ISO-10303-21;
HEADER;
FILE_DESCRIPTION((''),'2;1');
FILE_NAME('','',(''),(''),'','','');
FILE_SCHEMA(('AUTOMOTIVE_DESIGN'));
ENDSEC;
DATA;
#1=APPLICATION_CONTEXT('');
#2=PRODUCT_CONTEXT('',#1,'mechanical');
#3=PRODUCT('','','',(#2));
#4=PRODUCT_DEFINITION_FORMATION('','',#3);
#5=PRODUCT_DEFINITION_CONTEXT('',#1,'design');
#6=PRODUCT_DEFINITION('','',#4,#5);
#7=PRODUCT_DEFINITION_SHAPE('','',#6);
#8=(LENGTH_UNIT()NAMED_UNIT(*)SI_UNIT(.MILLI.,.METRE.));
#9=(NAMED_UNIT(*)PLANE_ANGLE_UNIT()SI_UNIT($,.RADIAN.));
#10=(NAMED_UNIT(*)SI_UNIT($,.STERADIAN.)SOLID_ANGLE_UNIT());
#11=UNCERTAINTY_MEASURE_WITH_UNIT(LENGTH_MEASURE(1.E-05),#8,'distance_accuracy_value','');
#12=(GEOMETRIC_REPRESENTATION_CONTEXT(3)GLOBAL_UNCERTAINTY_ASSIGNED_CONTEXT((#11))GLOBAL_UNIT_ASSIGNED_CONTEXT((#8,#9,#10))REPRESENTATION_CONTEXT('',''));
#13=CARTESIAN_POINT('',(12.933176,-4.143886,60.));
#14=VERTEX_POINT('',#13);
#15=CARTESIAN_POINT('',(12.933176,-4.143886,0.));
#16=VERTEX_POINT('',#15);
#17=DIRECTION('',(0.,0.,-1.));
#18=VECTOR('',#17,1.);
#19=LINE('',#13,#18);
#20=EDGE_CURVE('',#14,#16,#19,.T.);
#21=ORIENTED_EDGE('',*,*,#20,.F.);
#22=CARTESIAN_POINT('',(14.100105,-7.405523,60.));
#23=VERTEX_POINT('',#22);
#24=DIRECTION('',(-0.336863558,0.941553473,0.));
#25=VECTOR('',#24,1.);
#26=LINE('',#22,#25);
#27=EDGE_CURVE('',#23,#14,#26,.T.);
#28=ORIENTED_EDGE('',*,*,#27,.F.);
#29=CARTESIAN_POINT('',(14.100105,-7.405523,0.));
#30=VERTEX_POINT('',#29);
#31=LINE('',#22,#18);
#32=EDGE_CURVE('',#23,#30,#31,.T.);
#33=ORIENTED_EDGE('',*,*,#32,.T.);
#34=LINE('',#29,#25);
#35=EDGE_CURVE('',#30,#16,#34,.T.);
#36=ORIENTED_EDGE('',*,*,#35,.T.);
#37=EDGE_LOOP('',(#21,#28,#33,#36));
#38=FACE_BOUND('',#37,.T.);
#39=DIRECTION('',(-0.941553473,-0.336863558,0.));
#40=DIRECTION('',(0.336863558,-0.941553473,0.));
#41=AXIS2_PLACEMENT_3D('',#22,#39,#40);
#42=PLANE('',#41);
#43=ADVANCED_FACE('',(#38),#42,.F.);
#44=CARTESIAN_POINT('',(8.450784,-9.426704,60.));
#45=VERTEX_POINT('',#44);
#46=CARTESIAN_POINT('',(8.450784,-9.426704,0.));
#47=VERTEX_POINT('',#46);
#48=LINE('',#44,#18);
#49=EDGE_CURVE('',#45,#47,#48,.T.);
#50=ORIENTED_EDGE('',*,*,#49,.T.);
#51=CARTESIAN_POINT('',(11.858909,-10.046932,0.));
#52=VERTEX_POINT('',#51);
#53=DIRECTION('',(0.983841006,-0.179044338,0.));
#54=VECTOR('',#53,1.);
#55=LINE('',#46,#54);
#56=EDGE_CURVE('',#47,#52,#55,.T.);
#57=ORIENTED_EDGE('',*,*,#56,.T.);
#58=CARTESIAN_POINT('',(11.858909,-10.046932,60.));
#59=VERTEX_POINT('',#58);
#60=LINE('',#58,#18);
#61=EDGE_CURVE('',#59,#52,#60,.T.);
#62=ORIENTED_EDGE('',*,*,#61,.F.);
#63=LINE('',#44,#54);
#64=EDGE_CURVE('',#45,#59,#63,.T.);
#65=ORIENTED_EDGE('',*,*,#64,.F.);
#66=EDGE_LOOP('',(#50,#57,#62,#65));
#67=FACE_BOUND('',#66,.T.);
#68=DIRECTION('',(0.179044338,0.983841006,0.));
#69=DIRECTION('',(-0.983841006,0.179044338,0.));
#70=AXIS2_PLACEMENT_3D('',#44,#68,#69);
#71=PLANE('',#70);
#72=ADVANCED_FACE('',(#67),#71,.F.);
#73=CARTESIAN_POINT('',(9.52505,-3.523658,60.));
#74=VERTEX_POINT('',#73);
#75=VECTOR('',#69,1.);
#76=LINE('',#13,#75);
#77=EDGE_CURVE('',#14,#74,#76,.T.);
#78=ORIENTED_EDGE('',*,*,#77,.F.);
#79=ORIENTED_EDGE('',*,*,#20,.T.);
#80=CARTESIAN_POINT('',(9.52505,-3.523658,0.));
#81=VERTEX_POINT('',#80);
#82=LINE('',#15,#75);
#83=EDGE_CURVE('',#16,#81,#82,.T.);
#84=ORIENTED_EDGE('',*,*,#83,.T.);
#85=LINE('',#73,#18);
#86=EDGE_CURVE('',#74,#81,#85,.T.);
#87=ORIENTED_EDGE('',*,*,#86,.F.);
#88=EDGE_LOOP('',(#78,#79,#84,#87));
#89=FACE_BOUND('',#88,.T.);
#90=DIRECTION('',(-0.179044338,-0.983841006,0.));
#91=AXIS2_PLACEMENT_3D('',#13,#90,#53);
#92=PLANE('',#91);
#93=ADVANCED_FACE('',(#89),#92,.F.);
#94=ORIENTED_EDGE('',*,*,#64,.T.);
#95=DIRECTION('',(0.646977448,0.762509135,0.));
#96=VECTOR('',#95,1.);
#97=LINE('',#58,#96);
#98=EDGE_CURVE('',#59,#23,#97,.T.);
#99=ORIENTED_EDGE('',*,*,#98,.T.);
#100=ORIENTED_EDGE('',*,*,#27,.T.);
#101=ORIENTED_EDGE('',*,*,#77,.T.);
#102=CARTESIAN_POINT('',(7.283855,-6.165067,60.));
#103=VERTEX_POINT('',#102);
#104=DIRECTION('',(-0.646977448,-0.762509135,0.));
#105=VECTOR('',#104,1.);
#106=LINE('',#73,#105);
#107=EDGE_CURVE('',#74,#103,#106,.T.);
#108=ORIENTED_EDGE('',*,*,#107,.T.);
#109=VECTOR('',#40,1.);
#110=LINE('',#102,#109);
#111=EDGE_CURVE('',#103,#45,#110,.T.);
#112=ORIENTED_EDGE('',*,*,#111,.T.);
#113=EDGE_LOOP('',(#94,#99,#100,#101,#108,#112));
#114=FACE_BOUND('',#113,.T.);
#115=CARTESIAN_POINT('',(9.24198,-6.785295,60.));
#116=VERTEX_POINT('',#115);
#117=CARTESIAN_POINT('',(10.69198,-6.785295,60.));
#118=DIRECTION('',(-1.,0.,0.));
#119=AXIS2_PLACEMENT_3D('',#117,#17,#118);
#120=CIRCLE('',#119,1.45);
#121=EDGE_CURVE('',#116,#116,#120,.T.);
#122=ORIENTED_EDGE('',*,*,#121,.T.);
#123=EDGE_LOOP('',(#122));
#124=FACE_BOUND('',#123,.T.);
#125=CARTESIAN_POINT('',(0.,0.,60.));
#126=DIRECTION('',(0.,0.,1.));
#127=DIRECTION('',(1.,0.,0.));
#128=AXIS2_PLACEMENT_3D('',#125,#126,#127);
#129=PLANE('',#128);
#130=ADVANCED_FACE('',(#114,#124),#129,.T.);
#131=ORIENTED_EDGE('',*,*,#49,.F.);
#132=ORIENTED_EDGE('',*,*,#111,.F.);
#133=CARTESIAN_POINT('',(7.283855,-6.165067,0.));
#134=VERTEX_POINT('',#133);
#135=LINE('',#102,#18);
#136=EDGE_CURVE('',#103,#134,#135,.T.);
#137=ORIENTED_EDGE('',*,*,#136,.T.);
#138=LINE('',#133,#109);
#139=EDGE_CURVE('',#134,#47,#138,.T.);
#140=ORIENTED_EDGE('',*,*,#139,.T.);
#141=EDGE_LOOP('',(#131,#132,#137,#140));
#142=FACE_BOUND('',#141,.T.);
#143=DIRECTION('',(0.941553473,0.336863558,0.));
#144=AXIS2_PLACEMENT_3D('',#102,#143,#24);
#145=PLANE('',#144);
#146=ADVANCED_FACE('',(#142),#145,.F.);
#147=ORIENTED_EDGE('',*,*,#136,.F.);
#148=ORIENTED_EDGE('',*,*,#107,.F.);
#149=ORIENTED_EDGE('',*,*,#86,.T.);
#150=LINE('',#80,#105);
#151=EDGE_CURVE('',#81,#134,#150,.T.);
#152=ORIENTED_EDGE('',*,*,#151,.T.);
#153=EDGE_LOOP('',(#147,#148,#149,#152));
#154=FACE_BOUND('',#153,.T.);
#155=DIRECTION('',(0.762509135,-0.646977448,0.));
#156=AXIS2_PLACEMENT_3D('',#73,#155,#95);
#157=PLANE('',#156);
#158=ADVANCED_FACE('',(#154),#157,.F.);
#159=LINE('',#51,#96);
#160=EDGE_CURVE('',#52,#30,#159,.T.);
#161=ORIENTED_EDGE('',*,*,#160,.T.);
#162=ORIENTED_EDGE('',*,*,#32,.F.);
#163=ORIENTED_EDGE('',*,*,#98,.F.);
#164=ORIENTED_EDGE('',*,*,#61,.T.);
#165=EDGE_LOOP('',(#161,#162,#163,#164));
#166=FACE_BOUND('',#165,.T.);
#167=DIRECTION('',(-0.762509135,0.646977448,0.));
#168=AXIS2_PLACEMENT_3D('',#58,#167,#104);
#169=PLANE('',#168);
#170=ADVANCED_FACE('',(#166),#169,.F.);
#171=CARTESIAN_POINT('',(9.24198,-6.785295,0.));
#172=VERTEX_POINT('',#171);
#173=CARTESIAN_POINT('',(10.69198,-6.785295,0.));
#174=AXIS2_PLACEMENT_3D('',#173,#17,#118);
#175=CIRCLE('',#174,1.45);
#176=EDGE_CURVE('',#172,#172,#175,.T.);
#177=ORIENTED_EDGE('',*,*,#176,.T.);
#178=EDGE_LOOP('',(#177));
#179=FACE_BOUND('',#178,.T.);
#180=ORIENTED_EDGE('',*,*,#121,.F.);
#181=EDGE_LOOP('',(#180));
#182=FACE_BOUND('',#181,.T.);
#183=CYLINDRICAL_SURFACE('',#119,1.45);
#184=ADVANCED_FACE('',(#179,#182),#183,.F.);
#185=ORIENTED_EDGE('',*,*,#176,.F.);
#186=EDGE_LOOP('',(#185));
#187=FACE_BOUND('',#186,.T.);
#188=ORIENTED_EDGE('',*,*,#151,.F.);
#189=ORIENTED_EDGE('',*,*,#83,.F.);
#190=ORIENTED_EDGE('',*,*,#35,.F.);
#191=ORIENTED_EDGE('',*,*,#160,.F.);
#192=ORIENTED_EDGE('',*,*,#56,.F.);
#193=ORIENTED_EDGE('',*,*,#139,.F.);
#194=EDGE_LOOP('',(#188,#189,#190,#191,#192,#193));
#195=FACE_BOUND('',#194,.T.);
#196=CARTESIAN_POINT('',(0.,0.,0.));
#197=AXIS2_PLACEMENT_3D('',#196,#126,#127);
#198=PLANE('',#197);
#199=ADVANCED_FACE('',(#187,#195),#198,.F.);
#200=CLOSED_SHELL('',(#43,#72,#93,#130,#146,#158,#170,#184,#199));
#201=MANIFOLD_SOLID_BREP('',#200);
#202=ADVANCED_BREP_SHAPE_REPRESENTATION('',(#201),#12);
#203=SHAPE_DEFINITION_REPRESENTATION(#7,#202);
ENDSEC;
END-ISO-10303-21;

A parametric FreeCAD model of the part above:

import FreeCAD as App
import Part
import Sketcher
Q = App.Units.Quantity


def add_polygon(sketch, points):
    """Adds a closed chain of lines whose ends are joined by coincident constraints."""
    first, n = sketch.GeometryCount, len(points)
    for a, b in zip(points, points[1:] + points[:1]):
        sketch.addGeometry(Part.LineSegment(App.Vector(*a, 0), App.Vector(*b, 0)), False)
    for i in range(n):
        sketch.addConstraint(Sketcher.Constraint("Coincident", first + i, 2, first + (i + 1) % n, 1))

doc = App.newDocument("Part")
params = doc.addObject("Spreadsheet::Sheet", "Params")
for row, (alias, value) in enumerate([
    ("pad1_length", "60 mm"),
    ("sketch2_diameter", "2.9 mm"),
], start=1):
    params.set(f"A{row}", alias)
    params.set(f"B{row}", "=" + value)
    params.setAlias(f"B{row}", alias)

body = doc.addObject("PartDesign::Body", "Body")

sketch1 = body.newObject("Sketcher::SketchObject", "Sketch")
sketch1.AttachmentSupport = (doc.getObject("XY_Plane"), [""])
sketch1.MapMode = "FlatFace"
add_polygon(sketch1, [(12.9, -4.1), (9.5, -3.5), (7.3, -6.2), (8.5, -9.4), (11.9, -10), (14.1, -7.4)])
sketch1.addConstraint([
    Sketcher.Constraint("Parallel", 0, 3),
    Sketcher.Constraint("Parallel", 1, 4),
    Sketcher.Constraint("Parallel", 2, 5),
    Sketcher.Constraint("Equal", 0, 1),
    Sketcher.Constraint("Equal", 1, 2),
    Sketcher.Constraint("Equal", 2, 3),
    Sketcher.Constraint("Distance", 0, Q("3.464102 mm")),
    Sketcher.Constraint("DistanceX", -1, 1, 0, 2, Q("9.52505 mm")),
    Sketcher.Constraint("DistanceY", 0, 2, -1, 1, Q("3.523658 mm")),
    Sketcher.Constraint("DistanceX", -1, 1, 3, 2, Q("11.858909 mm")),
    Sketcher.Constraint("DistanceY", 3, 2, -1, 1, Q("10.046932 mm")),
    Sketcher.Constraint("DistanceY", 1, 2, 0, 2, Q("2.641409 mm")),
])
pad1 = body.newObject("PartDesign::Pad", "Pad")
pad1.Profile = sketch1
pad1.setExpression("Length", "Params.pad1_length")

sketch2 = body.newObject("Sketcher::SketchObject", "Sketch001")
sketch2.AttachmentSupport = (doc.getObject("XY_Plane"), [""])
sketch2.MapMode = "FlatFace"
sketch2.addGeometry(Part.Circle(App.Vector(10.7, -6.8, 0), App.Vector(0, 0, 1), 1.4), False)
sketch2.addConstraint([
    Sketcher.Constraint("Diameter", 0, Q("2.9 mm")),
    Sketcher.Constraint("DistanceX", -1, 1, 0, 3, Q("10.69198 mm")),
    Sketcher.Constraint("DistanceY", 0, 3, -1, 1, Q("6.785295 mm")),
])
sketch2.setExpression("Constraints[0]", "Params.sketch2_diameter")
pocket1 = body.newObject("PartDesign::Pocket", "Pocket")
pocket1.Profile = sketch2
pocket1.Type = "ThroughAll"
pocket1.Reversed = True

doc.recompute()
